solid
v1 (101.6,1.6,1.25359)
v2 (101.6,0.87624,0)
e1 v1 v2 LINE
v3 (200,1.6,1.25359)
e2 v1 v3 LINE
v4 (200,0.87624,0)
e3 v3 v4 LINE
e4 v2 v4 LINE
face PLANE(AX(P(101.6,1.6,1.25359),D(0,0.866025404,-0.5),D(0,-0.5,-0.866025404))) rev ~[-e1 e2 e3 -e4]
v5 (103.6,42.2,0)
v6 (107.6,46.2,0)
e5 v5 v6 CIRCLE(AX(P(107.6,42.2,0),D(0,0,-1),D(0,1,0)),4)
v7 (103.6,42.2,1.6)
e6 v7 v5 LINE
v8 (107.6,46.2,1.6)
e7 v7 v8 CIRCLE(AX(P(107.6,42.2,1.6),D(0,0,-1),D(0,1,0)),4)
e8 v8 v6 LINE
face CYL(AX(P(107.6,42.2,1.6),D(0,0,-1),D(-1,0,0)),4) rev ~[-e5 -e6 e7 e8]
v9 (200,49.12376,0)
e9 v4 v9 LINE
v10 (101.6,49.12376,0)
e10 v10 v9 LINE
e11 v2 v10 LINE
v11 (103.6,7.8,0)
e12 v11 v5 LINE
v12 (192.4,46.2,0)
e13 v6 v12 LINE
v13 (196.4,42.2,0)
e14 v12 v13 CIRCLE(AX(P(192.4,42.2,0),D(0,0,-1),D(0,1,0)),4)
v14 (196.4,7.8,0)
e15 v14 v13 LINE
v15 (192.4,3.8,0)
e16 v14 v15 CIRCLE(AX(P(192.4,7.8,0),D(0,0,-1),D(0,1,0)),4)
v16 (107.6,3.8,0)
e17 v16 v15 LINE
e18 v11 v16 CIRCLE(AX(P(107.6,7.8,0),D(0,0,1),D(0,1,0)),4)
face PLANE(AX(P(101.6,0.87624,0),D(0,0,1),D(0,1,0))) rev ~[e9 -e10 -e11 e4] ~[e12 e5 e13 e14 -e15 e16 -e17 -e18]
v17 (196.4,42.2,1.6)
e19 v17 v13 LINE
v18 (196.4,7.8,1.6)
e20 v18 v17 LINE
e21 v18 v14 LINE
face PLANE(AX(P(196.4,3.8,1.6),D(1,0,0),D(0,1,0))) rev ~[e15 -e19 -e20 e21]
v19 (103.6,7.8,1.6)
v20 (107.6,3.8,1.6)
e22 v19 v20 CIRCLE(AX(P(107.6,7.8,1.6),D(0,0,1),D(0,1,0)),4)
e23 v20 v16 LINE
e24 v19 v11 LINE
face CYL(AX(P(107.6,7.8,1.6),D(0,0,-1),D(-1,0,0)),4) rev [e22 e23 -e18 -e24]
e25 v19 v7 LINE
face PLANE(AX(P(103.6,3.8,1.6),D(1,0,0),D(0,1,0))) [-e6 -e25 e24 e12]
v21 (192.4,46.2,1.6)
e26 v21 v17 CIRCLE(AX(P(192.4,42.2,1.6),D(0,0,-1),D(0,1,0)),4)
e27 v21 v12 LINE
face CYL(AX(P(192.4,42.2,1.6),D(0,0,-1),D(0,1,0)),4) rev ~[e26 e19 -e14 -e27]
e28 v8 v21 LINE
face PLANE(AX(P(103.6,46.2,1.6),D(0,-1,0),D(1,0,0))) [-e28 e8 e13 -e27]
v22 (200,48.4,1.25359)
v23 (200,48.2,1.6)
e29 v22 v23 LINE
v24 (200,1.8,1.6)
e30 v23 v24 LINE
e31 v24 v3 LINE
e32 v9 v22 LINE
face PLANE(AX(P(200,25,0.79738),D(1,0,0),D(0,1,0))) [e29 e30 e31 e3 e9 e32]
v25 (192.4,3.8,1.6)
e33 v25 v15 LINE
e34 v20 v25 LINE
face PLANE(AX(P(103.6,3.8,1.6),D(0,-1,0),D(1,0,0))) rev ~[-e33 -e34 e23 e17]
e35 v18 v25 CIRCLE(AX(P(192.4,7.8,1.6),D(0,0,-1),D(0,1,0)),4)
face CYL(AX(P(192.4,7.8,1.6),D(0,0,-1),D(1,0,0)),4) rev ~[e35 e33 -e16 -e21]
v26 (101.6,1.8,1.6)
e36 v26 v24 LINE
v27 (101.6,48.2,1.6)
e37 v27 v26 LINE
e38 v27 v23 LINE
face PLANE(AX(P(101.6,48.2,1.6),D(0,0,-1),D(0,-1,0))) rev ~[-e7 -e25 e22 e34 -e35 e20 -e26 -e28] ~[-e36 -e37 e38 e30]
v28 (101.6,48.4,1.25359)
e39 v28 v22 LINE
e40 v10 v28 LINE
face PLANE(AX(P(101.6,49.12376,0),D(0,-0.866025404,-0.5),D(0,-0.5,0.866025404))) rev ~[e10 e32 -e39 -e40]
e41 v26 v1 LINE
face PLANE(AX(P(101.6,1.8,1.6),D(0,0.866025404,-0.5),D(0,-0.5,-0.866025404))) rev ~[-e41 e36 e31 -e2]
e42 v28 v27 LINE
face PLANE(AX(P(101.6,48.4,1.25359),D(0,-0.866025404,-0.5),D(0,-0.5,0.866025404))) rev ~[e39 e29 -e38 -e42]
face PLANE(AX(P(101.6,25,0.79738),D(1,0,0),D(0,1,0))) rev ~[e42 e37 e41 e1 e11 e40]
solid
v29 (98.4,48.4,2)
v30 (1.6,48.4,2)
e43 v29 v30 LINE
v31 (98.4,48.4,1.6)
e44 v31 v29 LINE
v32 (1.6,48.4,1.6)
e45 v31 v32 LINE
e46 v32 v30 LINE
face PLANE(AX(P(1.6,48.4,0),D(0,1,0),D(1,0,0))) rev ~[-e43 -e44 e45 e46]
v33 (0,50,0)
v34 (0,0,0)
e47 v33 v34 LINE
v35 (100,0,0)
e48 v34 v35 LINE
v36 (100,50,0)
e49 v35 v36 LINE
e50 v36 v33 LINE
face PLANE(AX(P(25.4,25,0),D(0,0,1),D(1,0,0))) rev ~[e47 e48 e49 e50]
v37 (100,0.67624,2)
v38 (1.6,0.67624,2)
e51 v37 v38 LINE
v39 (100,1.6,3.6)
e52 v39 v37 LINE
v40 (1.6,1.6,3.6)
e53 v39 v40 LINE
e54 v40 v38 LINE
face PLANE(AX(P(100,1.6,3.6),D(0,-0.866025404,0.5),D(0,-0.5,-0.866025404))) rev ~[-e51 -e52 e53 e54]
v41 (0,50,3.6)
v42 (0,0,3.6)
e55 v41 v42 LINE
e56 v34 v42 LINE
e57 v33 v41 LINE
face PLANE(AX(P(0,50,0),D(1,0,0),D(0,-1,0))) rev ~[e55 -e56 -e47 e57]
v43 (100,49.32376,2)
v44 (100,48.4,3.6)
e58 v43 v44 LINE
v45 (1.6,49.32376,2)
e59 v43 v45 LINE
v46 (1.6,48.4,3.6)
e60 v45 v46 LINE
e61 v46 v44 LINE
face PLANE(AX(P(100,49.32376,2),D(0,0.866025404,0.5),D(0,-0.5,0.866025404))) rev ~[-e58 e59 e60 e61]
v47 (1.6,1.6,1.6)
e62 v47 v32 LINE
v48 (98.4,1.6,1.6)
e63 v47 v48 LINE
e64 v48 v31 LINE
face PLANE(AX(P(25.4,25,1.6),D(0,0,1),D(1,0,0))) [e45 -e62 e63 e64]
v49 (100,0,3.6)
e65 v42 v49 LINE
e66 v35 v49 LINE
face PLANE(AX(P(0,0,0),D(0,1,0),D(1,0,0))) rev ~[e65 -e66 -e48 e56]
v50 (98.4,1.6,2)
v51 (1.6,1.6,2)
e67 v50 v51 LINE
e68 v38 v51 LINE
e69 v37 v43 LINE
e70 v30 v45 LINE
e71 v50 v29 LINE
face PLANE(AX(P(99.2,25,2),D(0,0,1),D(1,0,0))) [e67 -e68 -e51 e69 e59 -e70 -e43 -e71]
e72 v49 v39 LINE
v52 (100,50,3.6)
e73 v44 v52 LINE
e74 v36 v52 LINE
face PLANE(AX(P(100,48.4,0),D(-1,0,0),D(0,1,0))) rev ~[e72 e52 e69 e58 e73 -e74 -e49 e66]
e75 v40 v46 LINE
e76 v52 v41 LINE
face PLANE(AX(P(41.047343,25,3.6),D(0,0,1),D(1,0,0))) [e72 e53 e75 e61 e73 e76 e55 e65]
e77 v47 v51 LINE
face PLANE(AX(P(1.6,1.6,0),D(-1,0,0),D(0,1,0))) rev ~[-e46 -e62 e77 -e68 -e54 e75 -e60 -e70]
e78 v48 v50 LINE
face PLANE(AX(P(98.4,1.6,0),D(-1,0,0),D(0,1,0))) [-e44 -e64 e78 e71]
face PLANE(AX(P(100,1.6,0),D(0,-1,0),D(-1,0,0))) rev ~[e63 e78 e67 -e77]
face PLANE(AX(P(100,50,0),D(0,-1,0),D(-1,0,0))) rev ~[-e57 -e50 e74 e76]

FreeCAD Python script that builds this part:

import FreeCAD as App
import Part
import Sketcher
Q = App.Units.Quantity


def edges_at(feature, points):
    """Names of the edges that pass closest to the given points."""
    edges = feature.Shape.Edges
    near = lambda p: min(range(len(edges)), key=lambda i: edges[i].distToShape(Part.Vertex(*p))[0])
    return sorted({f"Edge{near(p) + 1}" for p in points})

doc = App.newDocument("Part")
body = doc.addObject("PartDesign::Body", "Body")

# Sketch on XY plane
sketch1 = body.newObject("Sketcher::SketchObject", "Sketch")
sketch1.AttachmentSupport = (doc.getObject("XY_Plane"), [""])
sketch1.MapMode = "FlatFace"
sketch1.addGeometry(Part.LineSegment(App.Vector(0, 50, 0), App.Vector(0, 0, 0)), False)
sketch1.addGeometry(Part.LineSegment(App.Vector(0, 0, 0), App.Vector(100, 0, 0)), False)
sketch1.addGeometry(Part.LineSegment(App.Vector(100, 0, 0), App.Vector(100, 1.6, 0)), False)
sketch1.addGeometry(Part.LineSegment(App.Vector(100, 1.6, 0), App.Vector(1.6, 1.6, 0)), False)
sketch1.addGeometry(Part.LineSegment(App.Vector(1.6, 1.6, 0), App.Vector(1.6, 48.4, 0)), False)
sketch1.addGeometry(Part.LineSegment(App.Vector(1.6, 48.4, 0), App.Vector(100, 48.4, 0)), False)
sketch1.addGeometry(Part.LineSegment(App.Vector(100, 48.4, 0), App.Vector(100, 50, 0)), False)
sketch1.addGeometry(Part.LineSegment(App.Vector(100, 50, 0), App.Vector(0, 50, 0)), False)
sketch1.addConstraint(Sketcher.Constraint("Coincident", 0, 2, 1, 1))
sketch1.addConstraint(Sketcher.Constraint("Coincident", 1, 2, 2, 1))
sketch1.addConstraint(Sketcher.Constraint("Coincident", 2, 2, 3, 1))
sketch1.addConstraint(Sketcher.Constraint("Coincident", 3, 2, 4, 1))
sketch1.addConstraint(Sketcher.Constraint("Coincident", 4, 2, 5, 1))
sketch1.addConstraint(Sketcher.Constraint("Coincident", 5, 2, 6, 1))
sketch1.addConstraint(Sketcher.Constraint("Coincident", 6, 2, 7, 1))
sketch1.addConstraint(Sketcher.Constraint("Coincident", 7, 2, 0, 1))
sketch1.addConstraint(Sketcher.Constraint("Vertical", 0))
sketch1.addConstraint(Sketcher.Constraint("Horizontal", 1))
sketch1.addConstraint(Sketcher.Constraint("Vertical", 2))
sketch1.addConstraint(Sketcher.Constraint("Horizontal", 3))
sketch1.addConstraint(Sketcher.Constraint("Vertical", 4))
sketch1.addConstraint(Sketcher.Constraint("Horizontal", 5))
sketch1.addConstraint(Sketcher.Constraint("Vertical", 6))
sketch1.addConstraint(Sketcher.Constraint("Horizontal", 7))
sketch1.addConstraint(Sketcher.Constraint("Coincident", 0, 2, -1, 1))
sketch1.addConstraint(Sketcher.Constraint("Vertical", 2, 2, 5, 2))
sketch1.addConstraint(Sketcher.Constraint("Equal", 2, 6))
sketch1.addConstraint(Sketcher.Constraint("DistanceX", 1, 1, 1, 2, 100.0))
sketch1.addConstraint(Sketcher.Constraint("DistanceY", 0, 2, 0, 1, 50.0))
sketch1.addConstraint(Sketcher.Constraint("DistanceX", 3, 2, 3, 1, 98.4))
sketch1.addConstraint(Sketcher.Constraint("DistanceY", 2, 1, 2, 2, 1.6))
pad1 = body.newObject("PartDesign::Pad", "Pad")
pad1.Profile = sketch1
pad1.Length = 3.6

# Sketch on XY plane
sketch2 = body.newObject("Sketcher::SketchObject", "Sketch001")
sketch2.AttachmentSupport = (doc.getObject("XY_Plane"), [""])
sketch2.MapMode = "FlatFace"
sketch2.addGeometry(Part.LineSegment(App.Vector(2, 48, 0), App.Vector(2, 2, 0)), False)
sketch2.addGeometry(Part.LineSegment(App.Vector(2, 2, 0), App.Vector(98, 2, 0)), False)
sketch2.addGeometry(Part.LineSegment(App.Vector(98, 2, 0), App.Vector(98, 48, 0)), False)
sketch2.addGeometry(Part.LineSegment(App.Vector(98, 48, 0), App.Vector(2, 48, 0)), False)
sketch2.addConstraint(Sketcher.Constraint("Coincident", 0, 2, 1, 1))
sketch2.addConstraint(Sketcher.Constraint("Coincident", 1, 2, 2, 1))
sketch2.addConstraint(Sketcher.Constraint("Coincident", 2, 2, 3, 1))
sketch2.addConstraint(Sketcher.Constraint("Coincident", 3, 2, 0, 1))
sketch2.addConstraint(Sketcher.Constraint("Vertical", 0))
sketch2.addConstraint(Sketcher.Constraint("Horizontal", 1))
sketch2.addConstraint(Sketcher.Constraint("Vertical", 2))
sketch2.addConstraint(Sketcher.Constraint("Horizontal", 3))
sketch2.addConstraint(Sketcher.Constraint("DistanceX", 1, 1, 1, 2, 96.8))
sketch2.addConstraint(Sketcher.Constraint("DistanceY", 0, 2, 0, 1, 46.8))
sketch2.addConstraint(Sketcher.Constraint("DistanceX", -1, 1, 0, 2, 1.6))
sketch2.addConstraint(Sketcher.Constraint("DistanceY", -1, 1, 0, 2, 1.6))
pad2 = body.newObject("PartDesign::Pad", "Pad001")
pad2.Profile = sketch2
pad2.Length = 1.6

# Sketch on XY plane
sketch3 = body.newObject("Sketcher::SketchObject", "Sketch002")
sketch3.AttachmentSupport = (doc.getObject("XY_Plane"), [""])
sketch3.MapMode = "FlatFace"
sketch3.addGeometry(Part.LineSegment(App.Vector(98.4, 48.4, 0), App.Vector(98.4, 1.6, 0)), False)
sketch3.addGeometry(Part.LineSegment(App.Vector(98.4, 1.6, 0), App.Vector(100, 1.6, 0)), False)
sketch3.addGeometry(Part.LineSegment(App.Vector(100, 1.6, 0), App.Vector(100, 48.4, 0)), False)
sketch3.addGeometry(Part.LineSegment(App.Vector(100, 48.4, 0), App.Vector(98.4, 48.4, 0)), False)
sketch3.addConstraint(Sketcher.Constraint("Coincident", 0, 2, 1, 1))
sketch3.addConstraint(Sketcher.Constraint("Coincident", 1, 2, 2, 1))
sketch3.addConstraint(Sketcher.Constraint("Coincident", 2, 2, 3, 1))
sketch3.addConstraint(Sketcher.Constraint("Coincident", 3, 2, 0, 1))
sketch3.addConstraint(Sketcher.Constraint("Vertical", 0))
sketch3.addConstraint(Sketcher.Constraint("Horizontal", 1))
sketch3.addConstraint(Sketcher.Constraint("Vertical", 2))
sketch3.addConstraint(Sketcher.Constraint("Horizontal", 3))
sketch3.addConstraint(Sketcher.Constraint("DistanceX", 1, 1, 1, 2, 1.6))
sketch3.addConstraint(Sketcher.Constraint("DistanceY", 0, 2, 0, 1, 46.8))
sketch3.addConstraint(Sketcher.Constraint("DistanceX", -1, 1, 1, 2, 100.0))
sketch3.addConstraint(Sketcher.Constraint("DistanceY", -1, 1, 0, 2, 1.6))
pad3 = body.newObject("PartDesign::Pad", "Pad002")
pad3.Profile = sketch3
pad3.Length = 2

# Sketch on YZ plane
sketch4 = body.newObject("Sketcher::SketchObject", "Sketch003")
sketch4.AttachmentSupport = (doc.getObject("YZ_Plane"), [""])
sketch4.MapMode = "FlatFace"
sketch4.AttachmentOffset = App.Placement(App.Vector(0, 0, 100), App.Rotation())
sketch4.addGeometry(Part.LineSegment(App.Vector(0.7, 2, 0), App.Vector(1.6, 2, 0)), False)
sketch4.addGeometry(Part.LineSegment(App.Vector(1.6, 2, 0), App.Vector(1.6, 3.6, 0)), False)
sketch4.addGeometry(Part.LineSegment(App.Vector(1.6, 3.6, 0), App.Vector(0.7, 2, 0)), False)
sketch4.addGeometry(Part.LineSegment(App.Vector(49.3, 2, 0), App.Vector(48.4, 3.6, 0)), False)
sketch4.addGeometry(Part.LineSegment(App.Vector(48.4, 3.6, 0), App.Vector(48.4, 2, 0)), False)
sketch4.addGeometry(Part.LineSegment(App.Vector(48.4, 2, 0), App.Vector(49.3, 2, 0)), False)
sketch4.addConstraint(Sketcher.Constraint("Coincident", 0, 2, 1, 1))
sketch4.addConstraint(Sketcher.Constraint("Coincident", 1, 2, 2, 1))
sketch4.addConstraint(Sketcher.Constraint("Coincident", 2, 2, 0, 1))
sketch4.addConstraint(Sketcher.Constraint("Coincident", 3, 2, 4, 1))
sketch4.addConstraint(Sketcher.Constraint("Coincident", 4, 2, 5, 1))
sketch4.addConstraint(Sketcher.Constraint("Coincident", 5, 2, 3, 1))
sketch4.addConstraint(Sketcher.Constraint("Horizontal", 0))
sketch4.addConstraint(Sketcher.Constraint("Vertical", 1))
sketch4.addConstraint(Sketcher.Constraint("Vertical", 4))
sketch4.addConstraint(Sketcher.Constraint("Horizontal", 5))
sketch4.addConstraint(Sketcher.Constraint("Horizontal", 1, 2, 3, 2))
sketch4.addConstraint(Sketcher.Constraint("Horizontal", 2, 2, 4, 2))
sketch4.addConstraint(Sketcher.Constraint("Equal", 0, 5))
sketch4.addConstraint(Sketcher.Constraint("Angle", 2, Q("-120 deg")))
sketch4.addConstraint(Sketcher.Constraint("DistanceY", 1, 1, 1, 2, 1.6))
sketch4.addConstraint(Sketcher.Constraint("DistanceY", -1, 1, 0, 2, 2.0))
sketch4.addConstraint(Sketcher.Constraint("DistanceX", -1, 1, 0, 2, 1.6))
sketch4.addConstraint(Sketcher.Constraint("DistanceX", -1, 1, 3, 2, 48.4))
pocket1 = body.newObject("PartDesign::Pocket", "Pocket")
pocket1.Profile = sketch4
pocket1.Length = 98.4
body2 = doc.addObject("PartDesign::Body", "Body001")

# Sketch on YZ plane
sketch5 = body2.newObject("Sketcher::SketchObject", "Sketch004")
sketch5.AttachmentSupport = (doc.getObject("YZ_Plane001"), [""])
sketch5.MapMode = "FlatFace"
sketch5.AttachmentOffset = App.Placement(App.Vector(0, 0, 101.6), App.Rotation())
sketch5.addGeometry(Part.LineSegment(App.Vector(48.4, 3.25, 0), App.Vector(48.2, 3.6, 0)), False)
sketch5.addGeometry(Part.LineSegment(App.Vector(48.2, 3.6, 0), App.Vector(1.8, 3.6, 0)), False)
sketch5.addGeometry(Part.LineSegment(App.Vector(1.8, 3.6, 0), App.Vector(1.6, 3.25, 0)), False)
sketch5.addGeometry(Part.LineSegment(App.Vector(1.6, 3.25, 0), App.Vector(0.88, 2, 0)), False)
sketch5.addGeometry(Part.LineSegment(App.Vector(0.88, 2, 0), App.Vector(49.12, 2, 0)), False)
sketch5.addGeometry(Part.LineSegment(App.Vector(49.12, 2, 0), App.Vector(48.4, 3.25, 0)), False)
sketch5.addConstraint(Sketcher.Constraint("Coincident", 0, 2, 1, 1))
sketch5.addConstraint(Sketcher.Constraint("Coincident", 1, 2, 2, 1))
sketch5.addConstraint(Sketcher.Constraint("Coincident", 2, 2, 3, 1))
sketch5.addConstraint(Sketcher.Constraint("Coincident", 3, 2, 4, 1))
sketch5.addConstraint(Sketcher.Constraint("Coincident", 4, 2, 5, 1))
sketch5.addConstraint(Sketcher.Constraint("Coincident", 5, 2, 0, 1))
sketch5.addConstraint(Sketcher.Constraint("Horizontal", 1))
sketch5.addConstraint(Sketcher.Constraint("Horizontal", 4))
sketch5.addConstraint(Sketcher.Constraint("Parallel", 2, 3))
sketch5.addConstraint(Sketcher.Constraint("Parallel", 0, 5))
sketch5.addConstraint(Sketcher.Constraint("Horizontal", 2, 2, 5, 2))
sketch5.addConstraint(Sketcher.Constraint("Equal", 0, 2))
sketch5.addConstraint(Sketcher.Constraint("Angle", 0, Q("120 deg")))
sketch5.addConstraint(Sketcher.Constraint("DistanceX", 1, 2, 1, 1, 46.4))
sketch5.addConstraint(Sketcher.Constraint("DistanceY", -1, 1, 3, 2, 2.0))
sketch5.addConstraint(Sketcher.Constraint("Distance", 0, 0.4))
sketch5.addConstraint(Sketcher.Constraint("DistanceX", -1, 1, 0, 2, 48.2))
sketch5.addConstraint(Sketcher.Constraint("DistanceY", -1, 1, 0, 2, 3.6))
pad4 = body2.newObject("PartDesign::Pad", "Pad003")
pad4.Profile = sketch5
pad4.Length = 98.4
body3 = doc.addObject("PartDesign::Body", "Body002")
doc.recompute()

body2.Placement = App.Placement(App.Vector(0, 0, -2), App.Rotation(App.Vector(0, 0, 1), 0))
boolean = body3.newObject("PartDesign::Boolean", "Boolean")
boolean.Type = "Fuse"
boolean.addObjects([body2])

# Sketch on XY plane
sketch6 = body3.newObject("Sketcher::SketchObject", "Sketch005")
sketch6.AttachmentSupport = (doc.getObject("XY_Plane002"), [""])
sketch6.MapMode = "FlatFace"
sketch6.AttachmentOffset = App.Placement(App.Vector(0, 0, 1.6), App.Rotation())
sketch6.addGeometry(Part.LineSegment(App.Vector(104, 46, 0), App.Vector(104, 4, 0)), False)
sketch6.addGeometry(Part.LineSegment(App.Vector(104, 4, 0), App.Vector(196, 4, 0)), False)
sketch6.addGeometry(Part.LineSegment(App.Vector(196, 4, 0), App.Vector(196, 46, 0)), False)
sketch6.addGeometry(Part.LineSegment(App.Vector(196, 46, 0), App.Vector(104, 46, 0)), False)
sketch6.addConstraint(Sketcher.Constraint("Coincident", 0, 2, 1, 1))
sketch6.addConstraint(Sketcher.Constraint("Coincident", 1, 2, 2, 1))
sketch6.addConstraint(Sketcher.Constraint("Coincident", 2, 2, 3, 1))
sketch6.addConstraint(Sketcher.Constraint("Coincident", 3, 2, 0, 1))
sketch6.addConstraint(Sketcher.Constraint("Vertical", 0))
sketch6.addConstraint(Sketcher.Constraint("Horizontal", 1))
sketch6.addConstraint(Sketcher.Constraint("Vertical", 2))
sketch6.addConstraint(Sketcher.Constraint("Horizontal", 3))
sketch6.addConstraint(Sketcher.Constraint("DistanceX", 1, 1, 1, 2, 92.8))
sketch6.addConstraint(Sketcher.Constraint("DistanceY", 0, 2, 0, 1, 42.4))
sketch6.addConstraint(Sketcher.Constraint("DistanceX", -1, 1, 0, 2, 103.6))
sketch6.addConstraint(Sketcher.Constraint("DistanceY", -1, 1, 0, 2, 3.8))
pocket2 = body3.newObject("PartDesign::Pocket", "Pocket001")
pocket2.Profile = sketch6
pocket2.Type = "ThroughAll"
doc.recompute()

fillet = body3.newObject("PartDesign::Fillet", "Fillet")
fillet.Base = (pocket2, edges_at(pocket2, [
    (103.6, 46.2, 0.8),
    (103.6, 3.8, 0.8),
    (196.4, 3.8, 0.8),
    (196.4, 46.2, 0.8),
]))
fillet.Radius = 4

doc.recompute()
